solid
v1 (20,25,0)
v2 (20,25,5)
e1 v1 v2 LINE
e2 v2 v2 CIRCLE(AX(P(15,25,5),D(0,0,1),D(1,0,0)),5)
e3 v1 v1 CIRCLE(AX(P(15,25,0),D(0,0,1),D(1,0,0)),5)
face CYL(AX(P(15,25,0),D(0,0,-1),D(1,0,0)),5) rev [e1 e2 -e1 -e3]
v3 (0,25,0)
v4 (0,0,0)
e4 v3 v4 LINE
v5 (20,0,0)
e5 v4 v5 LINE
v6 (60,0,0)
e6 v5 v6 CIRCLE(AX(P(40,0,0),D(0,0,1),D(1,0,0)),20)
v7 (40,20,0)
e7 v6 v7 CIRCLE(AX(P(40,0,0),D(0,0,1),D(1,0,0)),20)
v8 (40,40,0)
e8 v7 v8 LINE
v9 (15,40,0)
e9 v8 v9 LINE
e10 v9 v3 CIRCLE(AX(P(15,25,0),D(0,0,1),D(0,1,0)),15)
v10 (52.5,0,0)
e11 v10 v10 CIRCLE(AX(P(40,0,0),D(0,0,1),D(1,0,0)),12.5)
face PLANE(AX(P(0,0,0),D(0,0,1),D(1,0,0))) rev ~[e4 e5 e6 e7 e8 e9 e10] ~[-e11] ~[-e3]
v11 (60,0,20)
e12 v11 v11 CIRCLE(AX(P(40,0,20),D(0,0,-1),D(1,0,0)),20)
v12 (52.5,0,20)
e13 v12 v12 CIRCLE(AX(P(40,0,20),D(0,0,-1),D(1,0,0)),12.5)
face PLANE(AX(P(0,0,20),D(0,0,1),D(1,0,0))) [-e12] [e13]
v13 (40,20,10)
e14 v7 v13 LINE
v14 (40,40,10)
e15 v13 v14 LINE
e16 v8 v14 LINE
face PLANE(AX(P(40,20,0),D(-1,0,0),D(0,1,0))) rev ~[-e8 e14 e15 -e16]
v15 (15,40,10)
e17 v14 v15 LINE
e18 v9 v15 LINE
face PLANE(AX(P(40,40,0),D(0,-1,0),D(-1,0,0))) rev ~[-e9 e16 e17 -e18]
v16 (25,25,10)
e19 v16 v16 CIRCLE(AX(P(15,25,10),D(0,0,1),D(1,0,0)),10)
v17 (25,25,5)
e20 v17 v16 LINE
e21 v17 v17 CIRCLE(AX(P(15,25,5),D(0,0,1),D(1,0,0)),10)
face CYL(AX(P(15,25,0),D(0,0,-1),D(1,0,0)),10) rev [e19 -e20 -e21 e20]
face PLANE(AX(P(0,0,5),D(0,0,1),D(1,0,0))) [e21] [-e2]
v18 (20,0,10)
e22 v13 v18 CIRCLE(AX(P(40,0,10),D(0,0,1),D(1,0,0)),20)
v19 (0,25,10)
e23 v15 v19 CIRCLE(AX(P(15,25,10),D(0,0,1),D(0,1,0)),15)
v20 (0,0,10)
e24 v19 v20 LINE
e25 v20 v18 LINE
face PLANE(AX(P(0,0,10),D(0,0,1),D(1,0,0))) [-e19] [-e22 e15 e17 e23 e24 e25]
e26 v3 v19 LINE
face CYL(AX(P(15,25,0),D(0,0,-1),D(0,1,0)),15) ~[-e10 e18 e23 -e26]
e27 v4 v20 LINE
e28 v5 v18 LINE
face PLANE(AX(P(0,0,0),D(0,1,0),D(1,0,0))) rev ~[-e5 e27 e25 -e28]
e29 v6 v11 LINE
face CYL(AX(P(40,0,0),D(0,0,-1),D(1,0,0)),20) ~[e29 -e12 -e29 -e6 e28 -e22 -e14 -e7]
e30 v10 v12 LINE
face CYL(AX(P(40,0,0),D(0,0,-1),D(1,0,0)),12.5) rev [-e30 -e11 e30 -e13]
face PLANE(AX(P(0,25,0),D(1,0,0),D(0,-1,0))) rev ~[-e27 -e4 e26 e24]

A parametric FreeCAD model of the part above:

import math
import FreeCAD as App
import Part
import Sketcher
from FreeCAD import Vector

doc = App.newDocument("Part")
body = doc.addObject("PartDesign::Body", "Body")

# Sketch on XY plane
sketch1 = body.newObject("Sketcher::SketchObject", "Sketch")
sketch1.AttachmentSupport = (doc.getObject("XY_Plane"), [""])
sketch1.MapMode = "FlatFace"
sketch1.addGeometry(Part.LineSegment(Vector(0, 25, 0), Vector(0, 0, 0)), False)
sketch1.addGeometry(Part.LineSegment(Vector(0, 0, 0), Vector(20, 0, 0)), False)
sketch1.addGeometry(Part.ArcOfCircle(Part.Circle(Vector(40, 0, 0), Vector(0, 0, 1), 20), math.radians(90), math.radians(180)), False)
sketch1.addGeometry(Part.LineSegment(Vector(40, 20, 0), Vector(40, 40, 0)), False)
sketch1.addGeometry(Part.LineSegment(Vector(40, 40, 0), Vector(15, 40, 0)), False)
sketch1.addGeometry(Part.ArcOfCircle(Part.Circle(Vector(15, 25, 0), Vector(0, 0, 1), 15), math.radians(90), math.radians(180)), False)
sketch1.addGeometry(Part.Circle(Vector(15, 25, 0), Vector(0, 0, 1), 10), False)
sketch1.addConstraint(Sketcher.Constraint("Coincident", 0, 2, 1, 1))
sketch1.addConstraint(Sketcher.Constraint("Coincident", 1, 2, 2, 2))
sketch1.addConstraint(Sketcher.Constraint("Coincident", 2, 1, 3, 1))
sketch1.addConstraint(Sketcher.Constraint("Coincident", 3, 2, 4, 1))
sketch1.addConstraint(Sketcher.Constraint("Tangent", 4, 2, 5, 1))
sketch1.addConstraint(Sketcher.Constraint("Tangent", 5, 2, 0, 1))
sketch1.addConstraint(Sketcher.Constraint("Vertical", 0))
sketch1.addConstraint(Sketcher.Constraint("Horizontal", 1))
sketch1.addConstraint(Sketcher.Constraint("Vertical", 3))
sketch1.addConstraint(Sketcher.Constraint("Horizontal", 4))
sketch1.addConstraint(Sketcher.Constraint("Coincident", 0, 2, -1, 1))
sketch1.addConstraint(Sketcher.Constraint("Coincident", 6, 3, 5, 3))
sketch1.addConstraint(Sketcher.Constraint("PointOnObject", 2, 3, -1))
sketch1.addConstraint(Sketcher.Constraint("Equal", 4, 0))
sketch1.addConstraint(Sketcher.Constraint("Equal", 1, 3))
sketch1.addConstraint(Sketcher.Constraint("Diameter", 6, 20.0))
sketch1.addConstraint(Sketcher.Constraint("Radius", 2, 20.0))
sketch1.addConstraint(Sketcher.Constraint("Radius", 5, 15.0))
sketch1.addConstraint(Sketcher.Constraint("DistanceX", 1, 1, 1, 2, 20.0))
pad1 = body.newObject("PartDesign::Pad", "Pad")
pad1.Profile = sketch1
pad1.Length = 10

# Sketch on XY plane
sketch2 = body.newObject("Sketcher::SketchObject", "Sketch001")
sketch2.AttachmentSupport = (doc.getObject("XY_Plane"), [""])
sketch2.MapMode = "FlatFace"
sketch2.addGeometry(Part.Circle(Vector(15, 25, 0), Vector(0, 0, 1), 10), False)
sketch2.addGeometry(Part.Circle(Vector(15, 25, 0), Vector(0, 0, 1), 5), False)
sketch2.addConstraint(Sketcher.Constraint("Coincident", 1, 3, 0, 3))
sketch2.addConstraint(Sketcher.Constraint("Diameter", 0, 20.0))
sketch2.addConstraint(Sketcher.Constraint("Diameter", 1, 10.0))
sketch2.addConstraint(Sketcher.Constraint("DistanceX", -1, 1, 0, 3, 15.0))
sketch2.addConstraint(Sketcher.Constraint("DistanceY", -1, 1, 0, 3, 25.0))
pad2 = body.newObject("PartDesign::Pad", "Pad001")
pad2.Profile = sketch2
pad2.Length = 5

# Sketch on XY plane
sketch3 = body.newObject("Sketcher::SketchObject", "Sketch002")
sketch3.AttachmentSupport = (doc.getObject("XY_Plane"), [""])
sketch3.MapMode = "FlatFace"
sketch3.addGeometry(Part.Circle(Vector(40, 0, 0), Vector(0, 0, 1), 20), False)
sketch3.addGeometry(Part.Circle(Vector(40, 0, 0), Vector(0, 0, 1), 12), False)
sketch3.addConstraint(Sketcher.Constraint("Coincident", 1, 3, 0, 3))
sketch3.addConstraint(Sketcher.Constraint("PointOnObject", 0, 3, -1))
sketch3.addConstraint(Sketcher.Constraint("Diameter", 0, 40.0))
sketch3.addConstraint(Sketcher.Constraint("Diameter", 1, 25.0))
sketch3.addConstraint(Sketcher.Constraint("DistanceX", -1, 1, 0, 3, 40.0))
pad3 = body.newObject("PartDesign::Pad", "Pad002")
pad3.Profile = sketch3
pad3.Length = 20

doc.recompute()
